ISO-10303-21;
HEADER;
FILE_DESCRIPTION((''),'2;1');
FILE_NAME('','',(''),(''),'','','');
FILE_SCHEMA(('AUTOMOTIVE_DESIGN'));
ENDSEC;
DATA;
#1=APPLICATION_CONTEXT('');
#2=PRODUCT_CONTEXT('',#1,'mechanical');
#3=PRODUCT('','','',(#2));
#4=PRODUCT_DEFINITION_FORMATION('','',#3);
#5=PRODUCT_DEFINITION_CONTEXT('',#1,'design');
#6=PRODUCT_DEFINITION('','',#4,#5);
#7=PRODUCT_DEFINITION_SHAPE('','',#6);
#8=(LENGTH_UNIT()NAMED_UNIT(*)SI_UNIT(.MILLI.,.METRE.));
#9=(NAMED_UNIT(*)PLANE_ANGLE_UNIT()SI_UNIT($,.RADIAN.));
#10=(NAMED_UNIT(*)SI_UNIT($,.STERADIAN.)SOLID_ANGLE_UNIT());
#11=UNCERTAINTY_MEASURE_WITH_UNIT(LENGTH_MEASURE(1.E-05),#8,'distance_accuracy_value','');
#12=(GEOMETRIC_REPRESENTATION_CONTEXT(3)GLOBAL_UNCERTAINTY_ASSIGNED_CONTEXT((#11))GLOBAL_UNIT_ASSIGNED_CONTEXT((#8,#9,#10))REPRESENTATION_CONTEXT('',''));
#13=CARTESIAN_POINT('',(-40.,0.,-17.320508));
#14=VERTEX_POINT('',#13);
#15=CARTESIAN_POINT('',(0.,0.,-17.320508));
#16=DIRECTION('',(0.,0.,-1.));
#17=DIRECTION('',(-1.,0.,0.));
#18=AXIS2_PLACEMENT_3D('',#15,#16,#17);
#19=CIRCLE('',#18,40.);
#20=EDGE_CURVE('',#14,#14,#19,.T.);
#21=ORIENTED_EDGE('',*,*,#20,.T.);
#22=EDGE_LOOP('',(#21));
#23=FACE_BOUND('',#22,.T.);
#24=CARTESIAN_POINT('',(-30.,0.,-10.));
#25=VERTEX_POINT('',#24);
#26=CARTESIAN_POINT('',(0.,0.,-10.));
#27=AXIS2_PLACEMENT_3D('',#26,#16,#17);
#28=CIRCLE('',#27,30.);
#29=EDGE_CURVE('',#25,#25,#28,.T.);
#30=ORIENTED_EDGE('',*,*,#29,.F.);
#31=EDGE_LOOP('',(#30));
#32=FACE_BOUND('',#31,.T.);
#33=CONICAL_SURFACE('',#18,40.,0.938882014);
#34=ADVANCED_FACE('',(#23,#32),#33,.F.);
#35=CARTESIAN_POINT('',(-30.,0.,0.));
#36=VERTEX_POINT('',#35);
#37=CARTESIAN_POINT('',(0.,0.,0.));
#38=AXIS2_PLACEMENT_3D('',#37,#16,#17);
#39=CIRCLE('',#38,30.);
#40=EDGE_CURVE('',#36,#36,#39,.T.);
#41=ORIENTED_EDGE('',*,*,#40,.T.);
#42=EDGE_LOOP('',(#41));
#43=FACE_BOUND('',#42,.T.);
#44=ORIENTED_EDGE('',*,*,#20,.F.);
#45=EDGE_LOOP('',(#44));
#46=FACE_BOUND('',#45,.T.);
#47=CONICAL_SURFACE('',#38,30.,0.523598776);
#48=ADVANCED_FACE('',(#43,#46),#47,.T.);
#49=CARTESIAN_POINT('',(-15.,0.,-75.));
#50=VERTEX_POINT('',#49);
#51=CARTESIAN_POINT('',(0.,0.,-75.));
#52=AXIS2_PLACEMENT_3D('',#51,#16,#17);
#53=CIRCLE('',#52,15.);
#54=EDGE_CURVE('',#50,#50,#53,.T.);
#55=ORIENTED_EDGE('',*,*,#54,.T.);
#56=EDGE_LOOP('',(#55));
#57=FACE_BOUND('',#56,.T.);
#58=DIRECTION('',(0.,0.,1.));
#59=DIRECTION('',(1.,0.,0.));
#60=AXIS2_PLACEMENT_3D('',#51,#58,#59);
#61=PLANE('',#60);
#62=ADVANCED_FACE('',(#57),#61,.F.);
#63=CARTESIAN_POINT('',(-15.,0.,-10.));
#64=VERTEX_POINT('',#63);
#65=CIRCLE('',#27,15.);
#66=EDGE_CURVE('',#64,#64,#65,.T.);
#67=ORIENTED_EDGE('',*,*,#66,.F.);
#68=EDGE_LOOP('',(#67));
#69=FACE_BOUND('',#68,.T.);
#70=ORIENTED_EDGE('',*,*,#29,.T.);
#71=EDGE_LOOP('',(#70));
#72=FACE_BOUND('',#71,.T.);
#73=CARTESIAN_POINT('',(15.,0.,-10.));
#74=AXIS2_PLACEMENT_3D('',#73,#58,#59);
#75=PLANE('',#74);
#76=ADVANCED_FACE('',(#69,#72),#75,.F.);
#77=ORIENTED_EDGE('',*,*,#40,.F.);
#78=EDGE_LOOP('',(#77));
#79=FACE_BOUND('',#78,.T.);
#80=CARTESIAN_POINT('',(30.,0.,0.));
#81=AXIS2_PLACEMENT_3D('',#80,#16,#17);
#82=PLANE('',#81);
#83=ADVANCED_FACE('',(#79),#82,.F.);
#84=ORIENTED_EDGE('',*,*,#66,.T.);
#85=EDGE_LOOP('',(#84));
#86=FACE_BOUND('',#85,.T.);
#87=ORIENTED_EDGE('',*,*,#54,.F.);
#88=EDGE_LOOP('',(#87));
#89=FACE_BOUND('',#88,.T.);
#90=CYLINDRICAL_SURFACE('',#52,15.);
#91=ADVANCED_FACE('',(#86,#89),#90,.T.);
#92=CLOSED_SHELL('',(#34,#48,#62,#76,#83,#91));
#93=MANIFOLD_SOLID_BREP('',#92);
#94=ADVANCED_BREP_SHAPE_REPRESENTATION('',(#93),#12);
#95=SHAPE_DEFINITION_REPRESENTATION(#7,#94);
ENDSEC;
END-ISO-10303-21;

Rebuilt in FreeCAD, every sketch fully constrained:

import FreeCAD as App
import Part
import Sketcher
Q = App.Units.Quantity

doc = App.newDocument("Part")
body = doc.addObject("PartDesign::Body", "Body")

# Sketch on XZ plane
sketch1 = body.newObject("Sketcher::SketchObject", "Sketch")
sketch1.AttachmentSupport = (doc.getObject("XZ_Plane"), [""])
sketch1.MapMode = "FlatFace"
sketch1.addGeometry(Part.LineSegment(App.Vector(15, -75, 0), App.Vector(0, -75, 0)), False)
sketch1.addGeometry(Part.LineSegment(App.Vector(0, -75, 0), App.Vector(0, 0, 0)), False)
sketch1.addGeometry(Part.LineSegment(App.Vector(0, 0, 0), App.Vector(30, 0, 0)), False)
sketch1.addGeometry(Part.LineSegment(App.Vector(30, 0, 0), App.Vector(40, -17, 0)), False)
sketch1.addGeometry(Part.LineSegment(App.Vector(40, -17, 0), App.Vector(30, -10, 0)), False)
sketch1.addGeometry(Part.LineSegment(App.Vector(30, -10, 0), App.Vector(15, -10, 0)), False)
sketch1.addGeometry(Part.LineSegment(App.Vector(15, -10, 0), App.Vector(15, -75, 0)), False)
sketch1.addConstraint(Sketcher.Constraint("Coincident", 0, 2, 1, 1))
sketch1.addConstraint(Sketcher.Constraint("Coincident", 1, 2, 2, 1))
sketch1.addConstraint(Sketcher.Constraint("Coincident", 2, 2, 3, 1))
sketch1.addConstraint(Sketcher.Constraint("Coincident", 3, 2, 4, 1))
sketch1.addConstraint(Sketcher.Constraint("Coincident", 4, 2, 5, 1))
sketch1.addConstraint(Sketcher.Constraint("Coincident", 5, 2, 6, 1))
sketch1.addConstraint(Sketcher.Constraint("Coincident", 6, 2, 0, 1))
sketch1.addConstraint(Sketcher.Constraint("Horizontal", 0))
sketch1.addConstraint(Sketcher.Constraint("Vertical", 1))
sketch1.addConstraint(Sketcher.Constraint("Horizontal", 2))
sketch1.addConstraint(Sketcher.Constraint("Horizontal", 5))
sketch1.addConstraint(Sketcher.Constraint("Vertical", 6))
sketch1.addConstraint(Sketcher.Constraint("Coincident", 1, 2, -1, 1))
sketch1.addConstraint(Sketcher.Constraint("Vertical", 2, 2, 4, 2))
sketch1.addConstraint(Sketcher.Constraint("Equal", 0, 5))
sketch1.addConstraint(Sketcher.Constraint("DistanceX", 0, 2, 0, 1, 15.0))
sketch1.addConstraint(Sketcher.Constraint("DistanceY", 1, 1, 1, 2, 75.0))
sketch1.addConstraint(Sketcher.Constraint("DistanceY", 6, 2, 6, 1, 65.0))
sketch1.addConstraint(Sketcher.Constraint("Angle", 3, Q("-60 deg")))
sketch1.addConstraint(Sketcher.Constraint("Distance", 3, 20.0))
revolution = body.newObject("PartDesign::Revolution", "Revolution")
revolution.Profile = sketch1
revolution.ReferenceAxis = (sketch1, ["V_Axis"])
revolution.Angle = 360

doc.recompute()
